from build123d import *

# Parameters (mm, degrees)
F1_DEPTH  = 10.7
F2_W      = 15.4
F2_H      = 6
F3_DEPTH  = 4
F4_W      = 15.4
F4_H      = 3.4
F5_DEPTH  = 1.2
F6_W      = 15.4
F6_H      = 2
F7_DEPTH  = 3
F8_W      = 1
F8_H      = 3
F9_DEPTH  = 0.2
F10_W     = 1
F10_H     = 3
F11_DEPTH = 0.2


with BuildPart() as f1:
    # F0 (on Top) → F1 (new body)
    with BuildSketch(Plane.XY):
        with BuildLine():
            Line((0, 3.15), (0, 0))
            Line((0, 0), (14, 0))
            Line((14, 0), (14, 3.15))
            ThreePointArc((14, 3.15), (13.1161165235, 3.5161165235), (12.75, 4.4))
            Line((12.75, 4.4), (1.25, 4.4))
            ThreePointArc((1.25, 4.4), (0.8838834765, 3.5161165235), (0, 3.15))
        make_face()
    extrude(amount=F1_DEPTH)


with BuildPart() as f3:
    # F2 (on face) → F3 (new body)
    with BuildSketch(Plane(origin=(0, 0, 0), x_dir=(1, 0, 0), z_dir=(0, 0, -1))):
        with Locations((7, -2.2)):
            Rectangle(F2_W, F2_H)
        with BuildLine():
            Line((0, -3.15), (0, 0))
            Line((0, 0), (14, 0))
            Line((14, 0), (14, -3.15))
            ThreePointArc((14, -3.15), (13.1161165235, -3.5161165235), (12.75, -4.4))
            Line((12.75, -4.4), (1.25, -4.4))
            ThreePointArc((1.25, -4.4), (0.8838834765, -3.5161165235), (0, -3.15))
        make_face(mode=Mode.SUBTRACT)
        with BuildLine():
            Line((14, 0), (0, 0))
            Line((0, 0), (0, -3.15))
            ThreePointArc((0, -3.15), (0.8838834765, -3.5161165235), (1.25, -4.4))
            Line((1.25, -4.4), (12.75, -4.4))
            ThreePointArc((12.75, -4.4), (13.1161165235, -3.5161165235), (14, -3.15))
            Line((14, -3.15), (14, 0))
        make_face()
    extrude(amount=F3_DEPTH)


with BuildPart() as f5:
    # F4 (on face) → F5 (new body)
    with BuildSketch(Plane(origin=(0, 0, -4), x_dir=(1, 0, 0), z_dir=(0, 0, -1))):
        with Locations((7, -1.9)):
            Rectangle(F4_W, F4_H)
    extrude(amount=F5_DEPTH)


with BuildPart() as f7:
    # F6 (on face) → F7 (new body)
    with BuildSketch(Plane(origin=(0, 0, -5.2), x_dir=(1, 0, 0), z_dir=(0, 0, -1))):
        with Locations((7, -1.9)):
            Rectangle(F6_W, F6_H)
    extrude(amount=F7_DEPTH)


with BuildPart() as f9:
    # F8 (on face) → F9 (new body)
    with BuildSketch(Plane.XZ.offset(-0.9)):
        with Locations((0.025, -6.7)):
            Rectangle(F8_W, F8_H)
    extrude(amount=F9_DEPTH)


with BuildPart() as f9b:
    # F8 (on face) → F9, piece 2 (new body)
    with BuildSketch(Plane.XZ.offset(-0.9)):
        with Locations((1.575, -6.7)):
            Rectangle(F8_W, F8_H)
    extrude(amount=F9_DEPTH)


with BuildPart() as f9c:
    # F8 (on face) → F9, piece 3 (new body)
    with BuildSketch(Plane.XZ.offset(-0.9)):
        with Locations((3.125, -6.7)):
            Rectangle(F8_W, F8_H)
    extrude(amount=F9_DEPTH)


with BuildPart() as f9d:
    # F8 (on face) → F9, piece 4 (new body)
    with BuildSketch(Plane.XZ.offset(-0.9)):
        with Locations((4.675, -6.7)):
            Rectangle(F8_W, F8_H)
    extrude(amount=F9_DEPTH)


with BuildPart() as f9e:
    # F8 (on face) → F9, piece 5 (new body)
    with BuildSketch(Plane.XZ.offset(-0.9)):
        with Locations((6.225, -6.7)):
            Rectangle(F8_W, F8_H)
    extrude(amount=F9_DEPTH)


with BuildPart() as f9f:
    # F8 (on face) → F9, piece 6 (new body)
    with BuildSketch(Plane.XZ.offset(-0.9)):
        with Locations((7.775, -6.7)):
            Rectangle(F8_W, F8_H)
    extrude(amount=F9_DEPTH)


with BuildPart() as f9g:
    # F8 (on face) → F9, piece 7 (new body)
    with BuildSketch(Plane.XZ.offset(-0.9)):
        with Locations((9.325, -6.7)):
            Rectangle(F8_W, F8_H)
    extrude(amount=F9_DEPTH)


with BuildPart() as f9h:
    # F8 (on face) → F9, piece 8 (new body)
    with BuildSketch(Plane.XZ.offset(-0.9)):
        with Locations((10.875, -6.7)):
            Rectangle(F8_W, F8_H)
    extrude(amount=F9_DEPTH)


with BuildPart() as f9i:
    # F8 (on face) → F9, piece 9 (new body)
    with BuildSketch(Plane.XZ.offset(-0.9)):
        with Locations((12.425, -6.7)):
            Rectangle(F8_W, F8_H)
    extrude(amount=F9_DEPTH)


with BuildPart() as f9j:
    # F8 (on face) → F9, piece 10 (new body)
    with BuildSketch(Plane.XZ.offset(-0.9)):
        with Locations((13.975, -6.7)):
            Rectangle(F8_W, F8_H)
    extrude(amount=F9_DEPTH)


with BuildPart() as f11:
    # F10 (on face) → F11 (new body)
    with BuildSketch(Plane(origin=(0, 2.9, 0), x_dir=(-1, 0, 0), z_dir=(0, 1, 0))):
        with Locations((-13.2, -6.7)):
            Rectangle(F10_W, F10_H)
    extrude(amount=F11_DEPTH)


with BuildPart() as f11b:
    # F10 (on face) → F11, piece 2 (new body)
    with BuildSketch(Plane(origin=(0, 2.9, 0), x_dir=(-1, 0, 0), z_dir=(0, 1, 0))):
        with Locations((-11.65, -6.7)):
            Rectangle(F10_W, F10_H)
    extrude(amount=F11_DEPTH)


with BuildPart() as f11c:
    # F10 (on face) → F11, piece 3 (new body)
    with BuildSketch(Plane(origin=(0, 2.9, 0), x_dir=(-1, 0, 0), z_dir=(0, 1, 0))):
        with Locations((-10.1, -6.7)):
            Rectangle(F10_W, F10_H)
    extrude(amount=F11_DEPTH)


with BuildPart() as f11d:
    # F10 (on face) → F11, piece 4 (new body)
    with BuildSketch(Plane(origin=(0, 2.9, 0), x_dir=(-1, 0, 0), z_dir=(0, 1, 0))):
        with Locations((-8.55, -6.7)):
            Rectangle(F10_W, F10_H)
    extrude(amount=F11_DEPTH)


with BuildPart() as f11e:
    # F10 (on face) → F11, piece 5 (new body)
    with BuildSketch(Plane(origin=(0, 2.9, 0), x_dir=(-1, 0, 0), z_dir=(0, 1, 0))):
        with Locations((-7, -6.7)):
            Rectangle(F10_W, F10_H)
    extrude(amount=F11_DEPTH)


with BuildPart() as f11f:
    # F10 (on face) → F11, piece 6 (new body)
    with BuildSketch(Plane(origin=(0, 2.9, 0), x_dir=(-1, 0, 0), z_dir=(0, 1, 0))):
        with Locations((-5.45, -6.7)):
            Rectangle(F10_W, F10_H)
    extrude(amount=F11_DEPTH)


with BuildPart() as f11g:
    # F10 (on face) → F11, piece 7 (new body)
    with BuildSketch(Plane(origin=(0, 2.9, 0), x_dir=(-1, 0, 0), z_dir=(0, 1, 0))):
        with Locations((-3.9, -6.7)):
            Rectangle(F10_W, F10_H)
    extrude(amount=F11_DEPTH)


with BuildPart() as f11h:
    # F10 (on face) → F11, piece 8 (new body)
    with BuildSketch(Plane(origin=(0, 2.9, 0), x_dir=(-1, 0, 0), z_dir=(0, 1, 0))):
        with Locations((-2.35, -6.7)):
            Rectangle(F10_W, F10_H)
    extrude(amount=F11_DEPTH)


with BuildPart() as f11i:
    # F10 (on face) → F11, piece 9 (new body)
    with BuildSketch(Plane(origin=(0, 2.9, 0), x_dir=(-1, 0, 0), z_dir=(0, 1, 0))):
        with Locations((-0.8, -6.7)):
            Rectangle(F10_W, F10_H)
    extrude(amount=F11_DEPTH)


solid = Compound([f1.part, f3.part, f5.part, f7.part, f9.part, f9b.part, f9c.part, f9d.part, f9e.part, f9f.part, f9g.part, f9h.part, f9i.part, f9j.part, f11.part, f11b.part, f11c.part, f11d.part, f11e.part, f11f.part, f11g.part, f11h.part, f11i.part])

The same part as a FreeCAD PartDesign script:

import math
import FreeCAD as App
import Part
import Sketcher

V = App.Vector


def add_polygon(sketch, points):
    """Adds a closed chain of lines whose ends are joined by coincident constraints."""
    first, n = sketch.GeometryCount, len(points)
    for a, b in zip(points, points[1:] + points[:1]):
        sketch.addGeometry(Part.LineSegment(App.Vector(*a, 0), App.Vector(*b, 0)), False)
    for i in range(n):
        sketch.addConstraint(Sketcher.Constraint("Coincident", first + i, 2, first + (i + 1) % n, 1))

doc = App.newDocument("Part")
body = doc.addObject("PartDesign::Body", "Body")

# Sketch on XY plane
sketch1 = doc.addObject("Sketcher::SketchObject", "Sketch")
body.addObject(sketch1)
sketch1.AttachmentSupport = (doc.XY_Plane, [""])
sketch1.MapMode = "FlatFace"
sketch1.addGeometry(Part.LineSegment(V(0, 3.1, 0), V(0, 0, 0)), False)
sketch1.addGeometry(Part.LineSegment(V(0, 0, 0), V(14, 0, 0)), False)
sketch1.addGeometry(Part.LineSegment(V(14, 0, 0), V(14, 3.1, 0)), False)
sketch1.addGeometry(Part.ArcOfCircle(Part.Circle(V(14, 4.4, 0), V(0, 0, 1), 1.2), math.radians(180), math.radians(270)), False)
sketch1.addGeometry(Part.LineSegment(V(12.8, 4.4, 0), V(1.2, 4.4, 0)), False)
sketch1.addGeometry(Part.ArcOfCircle(Part.Circle(V(0, 4.4, 0), V(0, 0, 1), 1.2), math.radians(-90), math.radians(0)), False)
sketch1.addConstraint(Sketcher.Constraint("Coincident", 0, 2, 1, 1))
sketch1.addConstraint(Sketcher.Constraint("Coincident", 1, 2, 2, 1))
sketch1.addConstraint(Sketcher.Constraint("Coincident", 2, 2, 3, 2))
sketch1.addConstraint(Sketcher.Constraint("Coincident", 3, 1, 4, 1))
sketch1.addConstraint(Sketcher.Constraint("Coincident", 4, 2, 5, 2))
sketch1.addConstraint(Sketcher.Constraint("Coincident", 5, 1, 0, 1))
sketch1.addConstraint(Sketcher.Constraint("Vertical", 0))
sketch1.addConstraint(Sketcher.Constraint("Horizontal", 1))
sketch1.addConstraint(Sketcher.Constraint("Vertical", 2))
sketch1.addConstraint(Sketcher.Constraint("Horizontal", 4))
sketch1.addConstraint(Sketcher.Constraint("Coincident", 0, 2, -1, 1))
sketch1.addConstraint(Sketcher.Constraint("Equal", 3, 5))
sketch1.addConstraint(Sketcher.Constraint("PointOnObject", 5, 3, -2))
sketch1.addConstraint(Sketcher.Constraint("Horizontal", 3, 3, 5, 3))
sketch1.addConstraint(Sketcher.Constraint("Horizontal", 5, 3, 3, 1))
sketch1.addConstraint(Sketcher.Constraint("Vertical", 3, 3, 1, 2))
sketch1.addConstraint(Sketcher.Constraint("DistanceX", 1, 1, 1, 2, 14.0))
sketch1.addConstraint(Sketcher.Constraint("Radius", 3, 1.25))
sketch1.addConstraint(Sketcher.Constraint("DistanceY", 0, 2, 0, 1, 3.15))
pad1 = doc.addObject("PartDesign::Pad", "Pad")
body.addObject(pad1)
pad1.Profile = sketch1
pad1.Length = 10.7
body2 = doc.addObject("PartDesign::Body", "Body001")

# Sketch on XY plane
sketch2 = doc.addObject("Sketcher::SketchObject", "Sketch001")
body2.addObject(sketch2)
sketch2.AttachmentSupport = (doc.getObject("XY_Plane001"), [""])
sketch2.MapMode = "FlatFace"
add_polygon(sketch2, [(-1, -1), (-1, 5), (15, 5), (15, -1)])  # lines 0-3
sketch2.addConstraint(Sketcher.Constraint("Vertical", 0))
sketch2.addConstraint(Sketcher.Constraint("Horizontal", 1))
sketch2.addConstraint(Sketcher.Constraint("Vertical", 2))
sketch2.addConstraint(Sketcher.Constraint("Horizontal", 3))
sketch2.addConstraint(Sketcher.Constraint("DistanceY", 0, 1, 0, 2, 6.0))
sketch2.addConstraint(Sketcher.Constraint("DistanceX", 1, 1, 1, 2, 15.4))
sketch2.addConstraint(Sketcher.Constraint("DistanceX", 0, 2, -1, 1, 0.7))
sketch2.addConstraint(Sketcher.Constraint("DistanceY", -1, 1, 0, 2, 5.2))
pad2 = doc.addObject("PartDesign::Pad", "Pad001")
body2.addObject(pad2)
pad2.Profile = sketch2
pad2.Length = 4
pad2.Reversed = True
body3 = doc.addObject("PartDesign::Body", "Body002")

# Sketch on XY plane
sketch3 = doc.addObject("Sketcher::SketchObject", "Sketch002")
body3.addObject(sketch3)
sketch3.AttachmentSupport = (doc.getObject("XY_Plane002"), [""])
sketch3.MapMode = "FlatFace"
sketch3.AttachmentOffset = App.Placement(V(0, 0, -4), App.Rotation())
add_polygon(sketch3, [(-0.7, 0.2), (-0.7, 3.6), (14.7, 3.6), (14.7, 0.2)])  # lines 0-3
sketch3.addConstraint(Sketcher.Constraint("Vertical", 0))
sketch3.addConstraint(Sketcher.Constraint("Horizontal", 1))
sketch3.addConstraint(Sketcher.Constraint("Vertical", 2))
sketch3.addConstraint(Sketcher.Constraint("Horizontal", 3))
sketch3.addConstraint(Sketcher.Constraint("DistanceX", 1, 1, 1, 2, 15.4))
sketch3.addConstraint(Sketcher.Constraint("DistanceY", 0, 1, 0, 2, 3.4))
sketch3.addConstraint(Sketcher.Constraint("DistanceX", 0, 2, -1, 1, 0.7))
sketch3.addConstraint(Sketcher.Constraint("DistanceY", -1, 1, 0, 2, 3.6))
pad3 = doc.addObject("PartDesign::Pad", "Pad002")
body3.addObject(pad3)
pad3.Profile = sketch3
pad3.Length = 1.2
pad3.Reversed = True
body4 = doc.addObject("PartDesign::Body", "Body003")

# Sketch on XY plane
sketch4 = doc.addObject("Sketcher::SketchObject", "Sketch003")
body4.addObject(sketch4)
sketch4.AttachmentSupport = (doc.getObject("XY_Plane003"), [""])
sketch4.MapMode = "FlatFace"
sketch4.AttachmentOffset = App.Placement(V(0, 0, -5.2), App.Rotation())
add_polygon(sketch4, [(-0.7, 0.9), (-0.7, 2.9), (14.7, 2.9), (14.7, 0.9)])  # lines 0-3
sketch4.addConstraint(Sketcher.Constraint("Vertical", 0))
sketch4.addConstraint(Sketcher.Constraint("Horizontal", 1))
sketch4.addConstraint(Sketcher.Constraint("Vertical", 2))
sketch4.addConstraint(Sketcher.Constraint("Horizontal", 3))
sketch4.addConstraint(Sketcher.Constraint("DistanceY", 0, 1, 0, 2, 2.0))
sketch4.addConstraint(Sketcher.Constraint("DistanceX", 1, 1, 1, 2, 15.4))
sketch4.addConstraint(Sketcher.Constraint("DistanceX", 0, 2, -1, 1, 0.7))
sketch4.addConstraint(Sketcher.Constraint("DistanceY", -1, 1, 0, 2, 2.9))
pad4 = doc.addObject("PartDesign::Pad", "Pad003")
body4.addObject(pad4)
pad4.Profile = sketch4
pad4.Length = 3
pad4.Reversed = True
body5 = doc.addObject("PartDesign::Body", "Body004")

# Sketch on XZ plane
sketch5 = doc.addObject("Sketcher::SketchObject", "Sketch004")
body5.addObject(sketch5)
sketch5.AttachmentSupport = (doc.getObject("XZ_Plane004"), [""])
sketch5.MapMode = "FlatFace"
sketch5.AttachmentOffset = App.Placement(V(0, 0, -0.9), App.Rotation())
add_polygon(sketch5, [(-0.5, -5.2), (-0.5, -8.2), (0.5, -8.2), (0.5, -5.2)])  # lines 0-3
sketch5.addConstraint(Sketcher.Constraint("Vertical", 0))
sketch5.addConstraint(Sketcher.Constraint("Horizontal", 1))
sketch5.addConstraint(Sketcher.Constraint("Vertical", 2))
sketch5.addConstraint(Sketcher.Constraint("Horizontal", 3))
sketch5.addConstraint(Sketcher.Constraint("DistanceX", 1, 1, 1, 2, 1.0))
sketch5.addConstraint(Sketcher.Constraint("DistanceY", 0, 2, 0, 1, 3.0))
sketch5.addConstraint(Sketcher.Constraint("DistanceY", 0, 2, -1, 1, 8.2))
sketch5.addConstraint(Sketcher.Constraint("DistanceX", 0, 2, -1, 1, 0.475))
pad5 = doc.addObject("PartDesign::Pad", "Pad004")
body5.addObject(pad5)
pad5.Profile = sketch5
pad5.Length = 0.2
body6 = doc.addObject("PartDesign::Body", "Body005")

# Sketch on XZ plane
sketch6 = doc.addObject("Sketcher::SketchObject", "Sketch005")
body6.addObject(sketch6)
sketch6.AttachmentSupport = (doc.getObject("XZ_Plane005"), [""])
sketch6.MapMode = "FlatFace"
sketch6.AttachmentOffset = App.Placement(V(0, 0, -0.9), App.Rotation())
add_polygon(sketch6, [(1.1, -5.2), (1.1, -8.2), (2.1, -8.2), (2.1, -5.2)])  # lines 0-3
sketch6.addConstraint(Sketcher.Constraint("Vertical", 0))
sketch6.addConstraint(Sketcher.Constraint("Horizontal", 1))
sketch6.addConstraint(Sketcher.Constraint("Vertical", 2))
sketch6.addConstraint(Sketcher.Constraint("Horizontal", 3))
sketch6.addConstraint(Sketcher.Constraint("DistanceX", 1, 1, 1, 2, 1.0))
sketch6.addConstraint(Sketcher.Constraint("DistanceY", 0, 2, 0, 1, 3.0))
sketch6.addConstraint(Sketcher.Constraint("DistanceY", 0, 2, -1, 1, 8.2))
sketch6.addConstraint(Sketcher.Constraint("DistanceX", -1, 1, 0, 2, 1.075))
pad6 = doc.addObject("PartDesign::Pad", "Pad005")
body6.addObject(pad6)
pad6.Profile = sketch6
pad6.Length = 0.2
body7 = doc.addObject("PartDesign::Body", "Body006")

# Sketch on XZ plane
sketch7 = doc.addObject("Sketcher::SketchObject", "Sketch006")
body7.addObject(sketch7)
sketch7.AttachmentSupport = (doc.getObject("XZ_Plane006"), [""])
sketch7.MapMode = "FlatFace"
sketch7.AttachmentOffset = App.Placement(V(0, 0, -0.9), App.Rotation())
add_polygon(sketch7, [(2.6, -5.2), (2.6, -8.2), (3.6, -8.2), (3.6, -5.2)])  # lines 0-3
sketch7.addConstraint(Sketcher.Constraint("Vertical", 0))
sketch7.addConstraint(Sketcher.Constraint("Horizontal", 1))
sketch7.addConstraint(Sketcher.Constraint("Vertical", 2))
sketch7.addConstraint(Sketcher.Constraint("Horizontal", 3))
sketch7.addConstraint(Sketcher.Constraint("DistanceX", 1, 1, 1, 2, 1.0))
sketch7.addConstraint(Sketcher.Constraint("DistanceY", 0, 2, 0, 1, 3.0))
sketch7.addConstraint(Sketcher.Constraint("DistanceY", 0, 2, -1, 1, 8.2))
sketch7.addConstraint(Sketcher.Constraint("DistanceX", -1, 1, 0, 2, 2.625))
pad7 = doc.addObject("PartDesign::Pad", "Pad006")
body7.addObject(pad7)
pad7.Profile = sketch7
pad7.Length = 0.2
body8 = doc.addObject("PartDesign::Body", "Body007")

# Sketch on XZ plane
sketch8 = doc.addObject("Sketcher::SketchObject", "Sketch007")
body8.addObject(sketch8)
sketch8.AttachmentSupport = (doc.getObject("XZ_Plane007"), [""])
sketch8.MapMode = "FlatFace"
sketch8.AttachmentOffset = App.Placement(V(0, 0, -0.9), App.Rotation())
add_polygon(sketch8, [(4.2, -5.2), (4.2, -8.2), (5.2, -8.2), (5.2, -5.2)])  # lines 0-3
sketch8.addConstraint(Sketcher.Constraint("Vertical", 0))
sketch8.addConstraint(Sketcher.Constraint("Horizontal", 1))
sketch8.addConstraint(Sketcher.Constraint("Vertical", 2))
sketch8.addConstraint(Sketcher.Constraint("Horizontal", 3))
sketch8.addConstraint(Sketcher.Constraint("DistanceX", 1, 1, 1, 2, 1.0))
sketch8.addConstraint(Sketcher.Constraint("DistanceY", 0, 2, 0, 1, 3.0))
sketch8.addConstraint(Sketcher.Constraint("DistanceY", 0, 2, -1, 1, 8.2))
sketch8.addConstraint(Sketcher.Constraint("DistanceX", -1, 1, 0, 2, 4.175))
pad8 = doc.addObject("PartDesign::Pad", "Pad007")
body8.addObject(pad8)
pad8.Profile = sketch8
pad8.Length = 0.2
body9 = doc.addObject("PartDesign::Body", "Body008")

# Sketch on XZ plane
sketch9 = doc.addObject("Sketcher::SketchObject", "Sketch008")
body9.addObject(sketch9)
sketch9.AttachmentSupport = (doc.getObject("XZ_Plane008"), [""])
sketch9.MapMode = "FlatFace"
sketch9.AttachmentOffset = App.Placement(V(0, 0, -0.9), App.Rotation())
add_polygon(sketch9, [(5.7, -5.2), (5.7, -8.2), (6.7, -8.2), (6.7, -5.2)])  # lines 0-3
sketch9.addConstraint(Sketcher.Constraint("Vertical", 0))
sketch9.addConstraint(Sketcher.Constraint("Horizontal", 1))
sketch9.addConstraint(Sketcher.Constraint("Vertical", 2))
sketch9.addConstraint(Sketcher.Constraint("Horizontal", 3))
sketch9.addConstraint(Sketcher.Constraint("DistanceX", 1, 1, 1, 2, 1.0))
sketch9.addConstraint(Sketcher.Constraint("DistanceY", 0, 2, 0, 1, 3.0))
sketch9.addConstraint(Sketcher.Constraint("DistanceY", 0, 2, -1, 1, 8.2))
sketch9.addConstraint(Sketcher.Constraint("DistanceX", -1, 1, 0, 2, 5.725))
pad9 = doc.addObject("PartDesign::Pad", "Pad008")
body9.addObject(pad9)
pad9.Profile = sketch9
pad9.Length = 0.2
body10 = doc.addObject("PartDesign::Body", "Body009")

# Sketch on XZ plane
sketch10 = doc.addObject("Sketcher::SketchObject", "Sketch009")
body10.addObject(sketch10)
sketch10.AttachmentSupport = (doc.getObject("XZ_Plane009"), [""])
sketch10.MapMode = "FlatFace"
sketch10.AttachmentOffset = App.Placement(V(0, 0, -0.9), App.Rotation())
add_polygon(sketch10, [(7.3, -5.2), (7.3, -8.2), (8.3, -8.2), (8.3, -5.2)])  # lines 0-3
sketch10.addConstraint(Sketcher.Constraint("Vertical", 0))
sketch10.addConstraint(Sketcher.Constraint("Horizontal", 1))
sketch10.addConstraint(Sketcher.Constraint("Vertical", 2))
sketch10.addConstraint(Sketcher.Constraint("Horizontal", 3))
sketch10.addConstraint(Sketcher.Constraint("DistanceX", 1, 1, 1, 2, 1.0))
sketch10.addConstraint(Sketcher.Constraint("DistanceY", 0, 2, 0, 1, 3.0))
sketch10.addConstraint(Sketcher.Constraint("DistanceY", 0, 2, -1, 1, 8.2))
sketch10.addConstraint(Sketcher.Constraint("DistanceX", -1, 1, 0, 2, 7.275))
pad10 = doc.addObject("PartDesign::Pad", "Pad009")
body10.addObject(pad10)
pad10.Profile = sketch10
pad10.Length = 0.2
body11 = doc.addObject("PartDesign::Body", "Body010")

# Sketch on XZ plane
sketch11 = doc.addObject("Sketcher::SketchObject", "Sketch010")
body11.addObject(sketch11)
sketch11.AttachmentSupport = (doc.getObject("XZ_Plane010"), [""])
sketch11.MapMode = "FlatFace"
sketch11.AttachmentOffset = App.Placement(V(0, 0, -0.9), App.Rotation())
add_polygon(sketch11, [(8.8, -5.2), (8.8, -8.2), (9.8, -8.2), (9.8, -5.2)])  # lines 0-3
sketch11.addConstraint(Sketcher.Constraint("Vertical", 0))
sketch11.addConstraint(Sketcher.Constraint("Horizontal", 1))
sketch11.addConstraint(Sketcher.Constraint("Vertical", 2))
sketch11.addConstraint(Sketcher.Constraint("Horizontal", 3))
sketch11.addConstraint(Sketcher.Constraint("DistanceX", 1, 1, 1, 2, 1.0))
sketch11.addConstraint(Sketcher.Constraint("DistanceY", 0, 2, 0, 1, 3.0))
sketch11.addConstraint(Sketcher.Constraint("DistanceY", 0, 2, -1, 1, 8.2))
sketch11.addConstraint(Sketcher.Constraint("DistanceX", -1, 1, 0, 2, 8.825))
pad11 = doc.addObject("PartDesign::Pad", "Pad010")
body11.addObject(pad11)
pad11.Profile = sketch11
pad11.Length = 0.2
body12 = doc.addObject("PartDesign::Body", "Body011")

# Sketch on XZ plane
sketch12 = doc.addObject("Sketcher::SketchObject", "Sketch011")
body12.addObject(sketch12)
sketch12.AttachmentSupport = (doc.getObject("XZ_Plane011"), [""])
sketch12.MapMode = "FlatFace"
sketch12.AttachmentOffset = App.Placement(V(0, 0, -0.9), App.Rotation())
add_polygon(sketch12, [(10.4, -5.2), (10.4, -8.2), (11.4, -8.2), (11.4, -5.2)])  # lines 0-3
sketch12.addConstraint(Sketcher.Constraint("Vertical", 0))
sketch12.addConstraint(Sketcher.Constraint("Horizontal", 1))
sketch12.addConstraint(Sketcher.Constraint("Vertical", 2))
sketch12.addConstraint(Sketcher.Constraint("Horizontal", 3))
sketch12.addConstraint(Sketcher.Constraint("DistanceX", 1, 1, 1, 2, 1.0))
sketch12.addConstraint(Sketcher.Constraint("DistanceY", 0, 2, 0, 1, 3.0))
sketch12.addConstraint(Sketcher.Constraint("DistanceY", 0, 2, -1, 1, 8.2))
sketch12.addConstraint(Sketcher.Constraint("DistanceX", -1, 1, 0, 2, 10.375))
pad12 = doc.addObject("PartDesign::Pad", "Pad011")
body12.addObject(pad12)
pad12.Profile = sketch12
pad12.Length = 0.2
body13 = doc.addObject("PartDesign::Body", "Body012")

# Sketch on XZ plane
sketch13 = doc.addObject("Sketcher::SketchObject", "Sketch012")
body13.addObject(sketch13)
sketch13.AttachmentSupport = (doc.getObject("XZ_Plane012"), [""])
sketch13.MapMode = "FlatFace"
sketch13.AttachmentOffset = App.Placement(V(0, 0, -0.9), App.Rotation())
add_polygon(sketch13, [(11.9, -5.2), (11.9, -8.2), (12.9, -8.2), (12.9, -5.2)])  # lines 0-3
sketch13.addConstraint(Sketcher.Constraint("Vertical", 0))
sketch13.addConstraint(Sketcher.Constraint("Horizontal", 1))
sketch13.addConstraint(Sketcher.Constraint("Vertical", 2))
sketch13.addConstraint(Sketcher.Constraint("Horizontal", 3))
sketch13.addConstraint(Sketcher.Constraint("DistanceX", 1, 1, 1, 2, 1.0))
sketch13.addConstraint(Sketcher.Constraint("DistanceY", 0, 2, 0, 1, 3.0))
sketch13.addConstraint(Sketcher.Constraint("DistanceY", 0, 2, -1, 1, 8.2))
sketch13.addConstraint(Sketcher.Constraint("DistanceX", -1, 1, 0, 2, 11.925))
pad13 = doc.addObject("PartDesign::Pad", "Pad012")
body13.addObject(pad13)
pad13.Profile = sketch13
pad13.Length = 0.2
body14 = doc.addObject("PartDesign::Body", "Body013")

# Sketch on XZ plane
sketch14 = doc.addObject("Sketcher::SketchObject", "Sketch013")
body14.addObject(sketch14)
sketch14.AttachmentSupport = (doc.getObject("XZ_Plane013"), [""])
sketch14.MapMode = "FlatFace"
sketch14.AttachmentOffset = App.Placement(V(0, 0, -0.9), App.Rotation())
add_polygon(sketch14, [(13.5, -5.2), (13.5, -8.2), (14.5, -8.2), (14.5, -5.2)])  # lines 0-3
sketch14.addConstraint(Sketcher.Constraint("Vertical", 0))
sketch14.addConstraint(Sketcher.Constraint("Horizontal", 1))
sketch14.addConstraint(Sketcher.Constraint("Vertical", 2))
sketch14.addConstraint(Sketcher.Constraint("Horizontal", 3))
sketch14.addConstraint(Sketcher.Constraint("DistanceX", 1, 1, 1, 2, 1.0))
sketch14.addConstraint(Sketcher.Constraint("DistanceY", 0, 2, 0, 1, 3.0))
sketch14.addConstraint(Sketcher.Constraint("DistanceY", 0, 2, -1, 1, 8.2))
sketch14.addConstraint(Sketcher.Constraint("DistanceX", -1, 1, 0, 2, 13.475))
pad14 = doc.addObject("PartDesign::Pad", "Pad013")
body14.addObject(pad14)
pad14.Profile = sketch14
pad14.Length = 0.2
body15 = doc.addObject("PartDesign::Body", "Body014")

# Sketch on XZ plane
sketch15 = doc.addObject("Sketcher::SketchObject", "Sketch014")
body15.addObject(sketch15)
sketch15.AttachmentSupport = (doc.getObject("XZ_Plane014"), [""])
sketch15.MapMode = "FlatFace"
sketch15.AttachmentOffset = App.Placement(V(0, 0, -2.9), App.Rotation())
add_polygon(sketch15, [(13.7, -5.2), (13.7, -8.2), (12.7, -8.2), (12.7, -5.2)])  # lines 0-3
sketch15.addConstraint(Sketcher.Constraint("Vertical", 0))
sketch15.addConstraint(Sketcher.Constraint("Horizontal", 1))
sketch15.addConstraint(Sketcher.Constraint("Vertical", 2))
sketch15.addConstraint(Sketcher.Constraint("Horizontal", 3))
sketch15.addConstraint(Sketcher.Constraint("DistanceX", 1, 2, 1, 1, 1.0))
sketch15.addConstraint(Sketcher.Constraint("DistanceY", 0, 2, 0, 1, 3.0))
sketch15.addConstraint(Sketcher.Constraint("DistanceX", -1, 1, 0, 2, 13.7))
sketch15.addConstraint(Sketcher.Constraint("DistanceY", 0, 2, -1, 1, 8.2))
pad15 = doc.addObject("PartDesign::Pad", "Pad014")
body15.addObject(pad15)
pad15.Profile = sketch15
pad15.Length = 0.2
pad15.Reversed = True
body16 = doc.addObject("PartDesign::Body", "Body015")

# Sketch on XZ plane
sketch16 = doc.addObject("Sketcher::SketchObject", "Sketch015")
body16.addObject(sketch16)
sketch16.AttachmentSupport = (doc.getObject("XZ_Plane015"), [""])
sketch16.MapMode = "FlatFace"
sketch16.AttachmentOffset = App.Placement(V(0, 0, -2.9), App.Rotation())
add_polygon(sketch16, [(12.2, -5.2), (12.2, -8.2), (11.2, -8.2), (11.2, -5.2)])  # lines 0-3
sketch16.addConstraint(Sketcher.Constraint("Vertical", 0))
sketch16.addConstraint(Sketcher.Constraint("Horizontal", 1))
sketch16.addConstraint(Sketcher.Constraint("Vertical", 2))
sketch16.addConstraint(Sketcher.Constraint("Horizontal", 3))
sketch16.addConstraint(Sketcher.Constraint("DistanceX", 1, 2, 1, 1, 1.0))
sketch16.addConstraint(Sketcher.Constraint("DistanceY", 0, 2, 0, 1, 3.0))
sketch16.addConstraint(Sketcher.Constraint("DistanceY", 0, 2, -1, 1, 8.2))
sketch16.addConstraint(Sketcher.Constraint("DistanceX", -1, 1, 0, 2, 12.15))
pad16 = doc.addObject("PartDesign::Pad", "Pad015")
body16.addObject(pad16)
pad16.Profile = sketch16
pad16.Length = 0.2
pad16.Reversed = True
body17 = doc.addObject("PartDesign::Body", "Body016")

# Sketch on XZ plane
sketch17 = doc.addObject("Sketcher::SketchObject", "Sketch016")
body17.addObject(sketch17)
sketch17.AttachmentSupport = (doc.getObject("XZ_Plane016"), [""])
sketch17.MapMode = "FlatFace"
sketch17.AttachmentOffset = App.Placement(V(0, 0, -2.9), App.Rotation())
add_polygon(sketch17, [(10.6, -5.2), (10.6, -8.2), (9.6, -8.2), (9.6, -5.2)])  # lines 0-3
sketch17.addConstraint(Sketcher.Constraint("Vertical", 0))
sketch17.addConstraint(Sketcher.Constraint("Horizontal", 1))
sketch17.addConstraint(Sketcher.Constraint("Vertical", 2))
sketch17.addConstraint(Sketcher.Constraint("Horizontal", 3))
sketch17.addConstraint(Sketcher.Constraint("DistanceX", 1, 2, 1, 1, 1.0))
sketch17.addConstraint(Sketcher.Constraint("DistanceY", 0, 2, 0, 1, 3.0))
sketch17.addConstraint(Sketcher.Constraint("DistanceX", -1, 1, 0, 2, 10.6))
sketch17.addConstraint(Sketcher.Constraint("DistanceY", 0, 2, -1, 1, 8.2))
pad17 = doc.addObject("PartDesign::Pad", "Pad016")
body17.addObject(pad17)
pad17.Profile = sketch17
pad17.Length = 0.2
pad17.Reversed = True
body18 = doc.addObject("PartDesign::Body", "Body017")

# Sketch on XZ plane
sketch18 = doc.addObject("Sketcher::SketchObject", "Sketch017")
body18.addObject(sketch18)
sketch18.AttachmentSupport = (doc.getObject("XZ_Plane017"), [""])
sketch18.MapMode = "FlatFace"
sketch18.AttachmentOffset = App.Placement(V(0, 0, -2.9), App.Rotation())
add_polygon(sketch18, [(9.1, -5.2), (9.1, -8.2), (8.1, -8.2), (8.1, -5.2)])  # lines 0-3
sketch18.addConstraint(Sketcher.Constraint("Vertical", 0))
sketch18.addConstraint(Sketcher.Constraint("Horizontal", 1))
sketch18.addConstraint(Sketcher.Constraint("Vertical", 2))
sketch18.addConstraint(Sketcher.Constraint("Horizontal", 3))
sketch18.addConstraint(Sketcher.Constraint("DistanceX", 1, 2, 1, 1, 1.0))
sketch18.addConstraint(Sketcher.Constraint("DistanceY", 0, 2, 0, 1, 3.0))
sketch18.addConstraint(Sketcher.Constraint("DistanceY", 0, 2, -1, 1, 8.2))
sketch18.addConstraint(Sketcher.Constraint("DistanceX", -1, 1, 0, 2, 9.05))
pad18 = doc.addObject("PartDesign::Pad", "Pad017")
body18.addObject(pad18)
pad18.Profile = sketch18
pad18.Length = 0.2
pad18.Reversed = True
body19 = doc.addObject("PartDesign::Body", "Body018")

# Sketch on XZ plane
sketch19 = doc.addObject("Sketcher::SketchObject", "Sketch018")
body19.addObject(sketch19)
sketch19.AttachmentSupport = (doc.getObject("XZ_Plane018"), [""])
sketch19.MapMode = "FlatFace"
sketch19.AttachmentOffset = App.Placement(V(0, 0, -2.9), App.Rotation())
add_polygon(sketch19, [(7.5, -5.2), (7.5, -8.2), (6.5, -8.2), (6.5, -5.2)])  # lines 0-3
sketch19.addConstraint(Sketcher.Constraint("Vertical", 0))
sketch19.addConstraint(Sketcher.Constraint("Horizontal", 1))
sketch19.addConstraint(Sketcher.Constraint("Vertical", 2))
sketch19.addConstraint(Sketcher.Constraint("Horizontal", 3))
sketch19.addConstraint(Sketcher.Constraint("DistanceX", 1, 2, 1, 1, 1.0))
sketch19.addConstraint(Sketcher.Constraint("DistanceY", 0, 2, 0, 1, 3.0))
sketch19.addConstraint(Sketcher.Constraint("DistanceX", -1, 1, 0, 2, 7.5))
sketch19.addConstraint(Sketcher.Constraint("DistanceY", 0, 2, -1, 1, 8.2))
pad19 = doc.addObject("PartDesign::Pad", "Pad018")
body19.addObject(pad19)
pad19.Profile = sketch19
pad19.Length = 0.2
pad19.Reversed = True
body20 = doc.addObject("PartDesign::Body", "Body019")

# Sketch on XZ plane
sketch20 = doc.addObject("Sketcher::SketchObject", "Sketch019")
body20.addObject(sketch20)
sketch20.AttachmentSupport = (doc.getObject("XZ_Plane019"), [""])
sketch20.MapMode = "FlatFace"
sketch20.AttachmentOffset = App.Placement(V(0, 0, -2.9), App.Rotation())
add_polygon(sketch20, [(6, -5.2), (6, -8.2), (5, -8.2), (5, -5.2)])  # lines 0-3
sketch20.addConstraint(Sketcher.Constraint("Vertical", 0))
sketch20.addConstraint(Sketcher.Constraint("Horizontal", 1))
sketch20.addConstraint(Sketcher.Constraint("Vertical", 2))
sketch20.addConstraint(Sketcher.Constraint("Horizontal", 3))
sketch20.addConstraint(Sketcher.Constraint("DistanceX", 1, 2, 1, 1, 1.0))
sketch20.addConstraint(Sketcher.Constraint("DistanceY", 0, 2, 0, 1, 3.0))
sketch20.addConstraint(Sketcher.Constraint("DistanceY", 0, 2, -1, 1, 8.2))
sketch20.addConstraint(Sketcher.Constraint("DistanceX", -1, 1, 0, 2, 5.95))
pad20 = doc.addObject("PartDesign::Pad", "Pad019")
body20.addObject(pad20)
pad20.Profile = sketch20
pad20.Length = 0.2
pad20.Reversed = True
body21 = doc.addObject("PartDesign::Body", "Body020")

# Sketch on XZ plane
sketch21 = doc.addObject("Sketcher::SketchObject", "Sketch020")
body21.addObject(sketch21)
sketch21.AttachmentSupport = (doc.getObject("XZ_Plane020"), [""])
sketch21.MapMode = "FlatFace"
sketch21.AttachmentOffset = App.Placement(V(0, 0, -2.9), App.Rotation())
add_polygon(sketch21, [(4.4, -5.2), (4.4, -8.2), (3.4, -8.2), (3.4, -5.2)])  # lines 0-3
sketch21.addConstraint(Sketcher.Constraint("Vertical", 0))
sketch21.addConstraint(Sketcher.Constraint("Horizontal", 1))
sketch21.addConstraint(Sketcher.Constraint("Vertical", 2))
sketch21.addConstraint(Sketcher.Constraint("Horizontal", 3))
sketch21.addConstraint(Sketcher.Constraint("DistanceX", 1, 2, 1, 1, 1.0))
sketch21.addConstraint(Sketcher.Constraint("DistanceY", 0, 2, 0, 1, 3.0))
sketch21.addConstraint(Sketcher.Constraint("DistanceX", -1, 1, 0, 2, 4.4))
sketch21.addConstraint(Sketcher.Constraint("DistanceY", 0, 2, -1, 1, 8.2))
pad21 = doc.addObject("PartDesign::Pad", "Pad020")
body21.addObject(pad21)
pad21.Profile = sketch21
pad21.Length = 0.2
pad21.Reversed = True
body22 = doc.addObject("PartDesign::Body", "Body021")

# Sketch on XZ plane
sketch22 = doc.addObject("Sketcher::SketchObject", "Sketch021")
body22.addObject(sketch22)
sketch22.AttachmentSupport = (doc.getObject("XZ_Plane021"), [""])
sketch22.MapMode = "FlatFace"
sketch22.AttachmentOffset = App.Placement(V(0, 0, -2.9), App.Rotation())
add_polygon(sketch22, [(2.9, -5.2), (2.9, -8.2), (1.9, -8.2), (1.9, -5.2)])  # lines 0-3
sketch22.addConstraint(Sketcher.Constraint("Vertical", 0))
sketch22.addConstraint(Sketcher.Constraint("Horizontal", 1))
sketch22.addConstraint(Sketcher.Constraint("Vertical", 2))
sketch22.addConstraint(Sketcher.Constraint("Horizontal", 3))
sketch22.addConstraint(Sketcher.Constraint("DistanceX", 1, 2, 1, 1, 1.0))
sketch22.addConstraint(Sketcher.Constraint("DistanceY", 0, 2, 0, 1, 3.0))
sketch22.addConstraint(Sketcher.Constraint("DistanceY", 0, 2, -1, 1, 8.2))
sketch22.addConstraint(Sketcher.Constraint("DistanceX", -1, 1, 0, 2, 2.85))
pad22 = doc.addObject("PartDesign::Pad", "Pad021")
body22.addObject(pad22)
pad22.Profile = sketch22
pad22.Length = 0.2
pad22.Reversed = True
body23 = doc.addObject("PartDesign::Body", "Body022")

# Sketch on XZ plane
sketch23 = doc.addObject("Sketcher::SketchObject", "Sketch022")
body23.addObject(sketch23)
sketch23.AttachmentSupport = (doc.getObject("XZ_Plane022"), [""])
sketch23.MapMode = "FlatFace"
sketch23.AttachmentOffset = App.Placement(V(0, 0, -2.9), App.Rotation())
add_polygon(sketch23, [(1.3, -5.2), (1.3, -8.2), (0.3, -8.2), (0.3, -5.2)])  # lines 0-3
sketch23.addConstraint(Sketcher.Constraint("Vertical", 0))
sketch23.addConstraint(Sketcher.Constraint("Horizontal", 1))
sketch23.addConstraint(Sketcher.Constraint("Vertical", 2))
sketch23.addConstraint(Sketcher.Constraint("Horizontal", 3))
sketch23.addConstraint(Sketcher.Constraint("DistanceX", 1, 2, 1, 1, 1.0))
sketch23.addConstraint(Sketcher.Constraint("DistanceY", 0, 2, 0, 1, 3.0))
sketch23.addConstraint(Sketcher.Constraint("DistanceX", -1, 1, 0, 2, 1.3))
sketch23.addConstraint(Sketcher.Constraint("DistanceY", 0, 2, -1, 1, 8.2))
pad23 = doc.addObject("PartDesign::Pad", "Pad022")
body23.addObject(pad23)
pad23.Profile = sketch23
pad23.Length = 0.2
pad23.Reversed = True

doc.recompute()
